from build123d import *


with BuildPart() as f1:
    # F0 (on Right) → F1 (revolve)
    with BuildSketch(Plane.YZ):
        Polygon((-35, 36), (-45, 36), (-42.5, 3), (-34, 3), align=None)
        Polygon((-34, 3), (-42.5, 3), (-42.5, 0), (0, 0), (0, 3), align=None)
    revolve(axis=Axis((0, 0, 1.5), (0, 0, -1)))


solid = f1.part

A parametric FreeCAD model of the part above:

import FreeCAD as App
import Part
import Sketcher
Q = App.Units.Quantity

doc = App.newDocument("Part")
body = doc.addObject("PartDesign::Body", "Body")

# Sketch on YZ plane
sketch1 = body.newObject("Sketcher::SketchObject", "Sketch")
sketch1.AttachmentSupport = (doc.getObject("YZ_Plane"), [""])
sketch1.MapMode = "FlatFace"
sketch1.addGeometry([
    Part.LineSegment(App.Vector(-35, 36, 0), App.Vector(-45, 36, 0)),  # 0
    Part.LineSegment(App.Vector(-45, 36, 0), App.Vector(-42.5, 3, 0)),  # 1
    Part.LineSegment(App.Vector(-42.5, 3, 0), App.Vector(-42.5, 0, 0)),  # 2
    Part.LineSegment(App.Vector(-42.5, 0, 0), App.Vector(0, 0, 0)),  # 3
    Part.LineSegment(App.Vector(0, 0, 0), App.Vector(0, 3, 0)),  # 4
    Part.LineSegment(App.Vector(0, 3, 0), App.Vector(-34, 3, 0)),  # 5
    Part.LineSegment(App.Vector(-34, 3, 0), App.Vector(-35, 36, 0)),  # 6
], False)
sketch1.addConstraint([
    Sketcher.Constraint("Coincident", 0, 2, 1, 1),
    Sketcher.Constraint("Coincident", 1, 2, 2, 1),
    Sketcher.Constraint("Coincident", 2, 2, 3, 1),
    Sketcher.Constraint("Coincident", 3, 2, 4, 1),
    Sketcher.Constraint("Coincident", 4, 2, 5, 1),
    Sketcher.Constraint("Coincident", 5, 2, 6, 1),
    Sketcher.Constraint("Coincident", 6, 2, 0, 1),
    Sketcher.Constraint("Horizontal", 0),
    Sketcher.Constraint("Vertical", 2),
    Sketcher.Constraint("Horizontal", 3),
    Sketcher.Constraint("Vertical", 4),
    Sketcher.Constraint("Horizontal", 5),
    Sketcher.Constraint("Coincident", 3, 2, -1, 1),
    Sketcher.Constraint("Horizontal", 1, 2, 4, 2),
    Sketcher.Constraint("DistanceX", 0, 2, 0, 1, Q("10 mm")),
    Sketcher.Constraint("DistanceX", 5, 2, 5, 1, Q("34 mm")),
    Sketcher.Constraint("DistanceY", 2, 2, 2, 1, Q("3 mm")),
    Sketcher.Constraint("DistanceX", 3, 1, 3, 2, Q("42.5 mm")),
    Sketcher.Constraint("DistanceX", 0, 2, -1, 1, Q("45 mm")),
    Sketcher.Constraint("DistanceY", -1, 1, 0, 2, Q("36 mm")),
])
revolution = body.newObject("PartDesign::Revolution", "Revolution")
revolution.Profile = sketch1
revolution.ReferenceAxis = (sketch1, ["V_Axis"])
revolution.Angle = 360

doc.recompute()
